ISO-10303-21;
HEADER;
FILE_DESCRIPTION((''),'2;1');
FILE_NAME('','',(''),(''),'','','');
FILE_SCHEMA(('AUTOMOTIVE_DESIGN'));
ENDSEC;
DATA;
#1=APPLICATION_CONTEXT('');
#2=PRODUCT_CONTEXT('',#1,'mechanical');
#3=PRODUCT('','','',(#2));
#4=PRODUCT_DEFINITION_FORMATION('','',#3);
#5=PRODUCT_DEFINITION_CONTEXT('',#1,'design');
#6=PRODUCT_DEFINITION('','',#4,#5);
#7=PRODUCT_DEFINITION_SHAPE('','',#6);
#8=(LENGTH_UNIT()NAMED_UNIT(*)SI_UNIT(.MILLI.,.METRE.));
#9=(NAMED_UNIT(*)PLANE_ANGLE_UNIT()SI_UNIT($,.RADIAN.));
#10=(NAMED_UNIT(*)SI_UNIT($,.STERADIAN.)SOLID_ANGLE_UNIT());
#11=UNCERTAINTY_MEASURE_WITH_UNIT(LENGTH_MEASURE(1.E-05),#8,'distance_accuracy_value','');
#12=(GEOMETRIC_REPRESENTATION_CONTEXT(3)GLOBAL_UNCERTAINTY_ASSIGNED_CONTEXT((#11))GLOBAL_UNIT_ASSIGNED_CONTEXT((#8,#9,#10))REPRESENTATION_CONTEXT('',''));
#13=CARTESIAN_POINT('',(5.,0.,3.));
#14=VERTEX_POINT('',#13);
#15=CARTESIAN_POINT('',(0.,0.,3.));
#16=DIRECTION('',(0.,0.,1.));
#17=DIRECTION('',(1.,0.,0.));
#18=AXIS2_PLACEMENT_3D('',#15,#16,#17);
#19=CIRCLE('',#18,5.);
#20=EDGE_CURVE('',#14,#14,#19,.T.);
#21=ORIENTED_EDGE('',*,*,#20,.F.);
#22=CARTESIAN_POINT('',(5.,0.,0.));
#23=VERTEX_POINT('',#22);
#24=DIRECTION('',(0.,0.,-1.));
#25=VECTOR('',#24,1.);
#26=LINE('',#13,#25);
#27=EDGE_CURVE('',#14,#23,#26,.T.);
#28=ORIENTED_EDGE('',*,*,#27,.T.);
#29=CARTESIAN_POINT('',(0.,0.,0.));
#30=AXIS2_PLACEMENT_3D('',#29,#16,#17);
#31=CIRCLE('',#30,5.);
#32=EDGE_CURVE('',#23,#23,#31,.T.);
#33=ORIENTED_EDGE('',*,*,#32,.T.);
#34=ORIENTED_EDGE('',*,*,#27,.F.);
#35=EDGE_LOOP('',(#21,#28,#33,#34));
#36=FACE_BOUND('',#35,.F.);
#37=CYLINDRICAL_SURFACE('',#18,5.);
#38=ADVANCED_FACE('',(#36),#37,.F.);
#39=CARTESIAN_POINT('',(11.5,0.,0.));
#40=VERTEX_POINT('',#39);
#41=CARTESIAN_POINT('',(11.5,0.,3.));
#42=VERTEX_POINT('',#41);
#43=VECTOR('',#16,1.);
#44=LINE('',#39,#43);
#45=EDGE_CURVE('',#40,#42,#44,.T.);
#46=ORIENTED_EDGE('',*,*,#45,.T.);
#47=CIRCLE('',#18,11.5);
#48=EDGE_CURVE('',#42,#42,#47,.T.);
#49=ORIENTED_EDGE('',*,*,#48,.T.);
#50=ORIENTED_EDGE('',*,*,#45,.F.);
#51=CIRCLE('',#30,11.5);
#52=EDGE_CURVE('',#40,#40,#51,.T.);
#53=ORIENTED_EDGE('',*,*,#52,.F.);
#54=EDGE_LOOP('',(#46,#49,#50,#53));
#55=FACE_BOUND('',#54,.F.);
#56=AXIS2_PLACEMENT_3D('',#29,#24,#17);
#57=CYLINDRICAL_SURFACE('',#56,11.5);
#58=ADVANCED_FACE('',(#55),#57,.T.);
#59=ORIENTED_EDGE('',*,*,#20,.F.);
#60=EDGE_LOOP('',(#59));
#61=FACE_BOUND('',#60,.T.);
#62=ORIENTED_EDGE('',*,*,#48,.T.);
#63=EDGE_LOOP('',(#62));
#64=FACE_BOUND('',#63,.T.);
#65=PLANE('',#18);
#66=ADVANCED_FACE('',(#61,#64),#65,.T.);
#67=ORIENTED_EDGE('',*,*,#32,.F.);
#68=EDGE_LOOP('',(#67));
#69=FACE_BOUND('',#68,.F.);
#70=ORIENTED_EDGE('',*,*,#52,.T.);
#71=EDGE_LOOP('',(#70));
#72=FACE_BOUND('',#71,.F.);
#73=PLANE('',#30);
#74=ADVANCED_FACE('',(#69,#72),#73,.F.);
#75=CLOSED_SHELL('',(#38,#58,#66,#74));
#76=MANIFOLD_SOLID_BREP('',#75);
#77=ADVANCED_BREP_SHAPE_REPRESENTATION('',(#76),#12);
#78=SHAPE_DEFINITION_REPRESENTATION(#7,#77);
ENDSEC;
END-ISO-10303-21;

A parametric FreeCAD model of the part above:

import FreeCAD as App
import Part
import Sketcher

V = App.Vector
Q = App.Units.Quantity

doc = App.newDocument("Part")
body = doc.addObject("PartDesign::Body", "Body")

sketch1 = doc.addObject("Sketcher::SketchObject", "Sketch")
body.addObject(sketch1)
sketch1.AttachmentSupport = (doc.XY_Plane, [""])
sketch1.MapMode = "FlatFace"
sketch1.addGeometry(Part.Circle(V(0, 0, 0), V(0, 0, 1), 12), False)
sketch1.addConstraint(Sketcher.Constraint("Coincident", 0, 3, -1, 1))
sketch1.addConstraint(Sketcher.Constraint("Diameter", 0, Q("23 mm")))
pad1 = doc.addObject("PartDesign::Pad", "Pad")
body.addObject(pad1)
pad1.Profile = sketch1
pad1.Length = 3

sketch2 = doc.addObject("Sketcher::SketchObject", "Sketch001")
body.addObject(sketch2)
sketch2.AttachmentSupport = (doc.XY_Plane, [""])
sketch2.MapMode = "FlatFace"
sketch2.AttachmentOffset = App.Placement(V(0, 0, 3), App.Rotation())
sketch2.addGeometry(Part.Circle(V(0, 0, 0), V(0, 0, 1), 5), False)
sketch2.addConstraint(Sketcher.Constraint("Coincident", 0, 3, -1, 1))
sketch2.addConstraint(Sketcher.Constraint("Diameter", 0, Q("10 mm")))
pocket1 = doc.addObject("PartDesign::Pocket", "Pocket")
body.addObject(pocket1)
pocket1.Profile = sketch2
pocket1.Length = 5

doc.recompute()
